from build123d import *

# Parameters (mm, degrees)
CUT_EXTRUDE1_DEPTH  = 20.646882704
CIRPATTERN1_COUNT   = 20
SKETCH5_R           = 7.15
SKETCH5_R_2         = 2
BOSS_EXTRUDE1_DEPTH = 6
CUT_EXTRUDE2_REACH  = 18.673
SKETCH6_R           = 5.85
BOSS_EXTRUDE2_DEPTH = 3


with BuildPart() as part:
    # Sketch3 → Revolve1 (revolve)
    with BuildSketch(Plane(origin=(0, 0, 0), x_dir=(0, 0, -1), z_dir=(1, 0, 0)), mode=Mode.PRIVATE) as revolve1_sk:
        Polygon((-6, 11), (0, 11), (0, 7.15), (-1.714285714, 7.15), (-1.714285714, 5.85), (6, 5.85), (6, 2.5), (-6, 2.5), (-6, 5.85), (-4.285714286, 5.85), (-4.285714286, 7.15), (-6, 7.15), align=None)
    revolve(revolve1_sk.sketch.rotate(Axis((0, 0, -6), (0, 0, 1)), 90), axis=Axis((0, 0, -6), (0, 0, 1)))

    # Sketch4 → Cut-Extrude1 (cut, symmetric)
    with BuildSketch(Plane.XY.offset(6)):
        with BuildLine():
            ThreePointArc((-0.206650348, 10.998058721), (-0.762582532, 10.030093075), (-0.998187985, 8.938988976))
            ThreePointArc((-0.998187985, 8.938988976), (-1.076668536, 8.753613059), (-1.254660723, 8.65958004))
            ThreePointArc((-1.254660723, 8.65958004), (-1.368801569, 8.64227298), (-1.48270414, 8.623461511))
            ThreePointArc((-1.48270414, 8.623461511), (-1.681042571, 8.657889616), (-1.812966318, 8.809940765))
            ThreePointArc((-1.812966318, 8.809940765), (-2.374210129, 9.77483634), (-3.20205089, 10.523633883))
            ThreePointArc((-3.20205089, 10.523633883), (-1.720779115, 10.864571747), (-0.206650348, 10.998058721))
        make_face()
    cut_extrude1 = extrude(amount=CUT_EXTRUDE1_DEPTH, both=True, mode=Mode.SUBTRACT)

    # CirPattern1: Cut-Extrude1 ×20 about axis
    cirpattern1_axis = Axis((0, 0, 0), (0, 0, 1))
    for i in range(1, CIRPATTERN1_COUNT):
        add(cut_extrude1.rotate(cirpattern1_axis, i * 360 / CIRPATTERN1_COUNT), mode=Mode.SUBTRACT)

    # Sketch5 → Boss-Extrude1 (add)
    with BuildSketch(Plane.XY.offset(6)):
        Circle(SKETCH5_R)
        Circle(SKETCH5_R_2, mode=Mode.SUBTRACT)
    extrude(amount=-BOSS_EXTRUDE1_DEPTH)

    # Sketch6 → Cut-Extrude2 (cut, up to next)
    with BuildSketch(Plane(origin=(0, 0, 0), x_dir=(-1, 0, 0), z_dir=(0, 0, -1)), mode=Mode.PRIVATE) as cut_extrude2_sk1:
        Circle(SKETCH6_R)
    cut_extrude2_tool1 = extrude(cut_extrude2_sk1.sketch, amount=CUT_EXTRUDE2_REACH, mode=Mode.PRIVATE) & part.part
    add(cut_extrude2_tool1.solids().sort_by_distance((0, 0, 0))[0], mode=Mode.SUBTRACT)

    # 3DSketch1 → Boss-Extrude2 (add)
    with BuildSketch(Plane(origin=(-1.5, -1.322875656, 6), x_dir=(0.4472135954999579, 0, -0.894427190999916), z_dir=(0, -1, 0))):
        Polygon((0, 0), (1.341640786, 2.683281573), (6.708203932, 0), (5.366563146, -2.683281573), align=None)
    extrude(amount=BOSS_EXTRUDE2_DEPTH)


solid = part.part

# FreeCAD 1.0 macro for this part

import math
import FreeCAD as App
import Part
import Sketcher

V = App.Vector
Q = App.Units.Quantity

doc = App.newDocument("Part")
body = doc.addObject("PartDesign::Body", "Body")

# Sketch on YZ plane
sketch1 = doc.addObject("Sketcher::SketchObject", "Sketch")
body.addObject(sketch1)
sketch1.AttachmentSupport = (doc.YZ_Plane, [""])
sketch1.MapMode = "FlatFace"
sketch1.addGeometry([
    Part.LineSegment(V(11, 0, 0), V(11, 6, 0)),  # 0
    Part.LineSegment(V(11, 6, 0), V(7.15, 6, 0)),  # 1
    Part.LineSegment(V(7.15, 6, 0), V(7.15, 4.285714, 0)),  # 2
    Part.LineSegment(V(7.15, 4.285714, 0), V(5.85, 4.285714, 0)),  # 3
    Part.LineSegment(V(5.85, 4.285714, 0), V(5.85, 6, 0)),  # 4
    Part.LineSegment(V(5.85, 6, 0), V(2.5, 6, 0)),  # 5
    Part.LineSegment(V(2.5, 6, 0), V(2.5, -6, 0)),  # 6
    Part.LineSegment(V(2.5, -6, 0), V(5.85, -6, 0)),  # 7
    Part.LineSegment(V(5.85, -6, 0), V(5.85, 1.714286, 0)),  # 8
    Part.LineSegment(V(5.85, 1.714286, 0), V(7.15, 1.714286, 0)),  # 9
    Part.LineSegment(V(7.15, 1.714286, 0), V(7.15, 0, 0)),  # 10
    Part.LineSegment(V(7.15, 0, 0), V(11, 0, 0)),  # 11
], False)
sketch1.addConstraint([
    Sketcher.Constraint("Coincident", 0, 2, 1, 1),
    Sketcher.Constraint("Coincident", 1, 2, 2, 1),
    Sketcher.Constraint("Coincident", 2, 2, 3, 1),
    Sketcher.Constraint("Coincident", 3, 2, 4, 1),
    Sketcher.Constraint("Coincident", 4, 2, 5, 1),
    Sketcher.Constraint("Coincident", 5, 2, 6, 1),
    Sketcher.Constraint("Coincident", 6, 2, 7, 1),
    Sketcher.Constraint("Coincident", 7, 2, 8, 1),
    Sketcher.Constraint("Coincident", 8, 2, 9, 1),
    Sketcher.Constraint("Coincident", 9, 2, 10, 1),
    Sketcher.Constraint("Coincident", 10, 2, 11, 1),
    Sketcher.Constraint("Coincident", 11, 2, 0, 1),
    Sketcher.Constraint("Vertical", 0),
    Sketcher.Constraint("Horizontal", 1),
    Sketcher.Constraint("Vertical", 2),
    Sketcher.Constraint("Horizontal", 3),
    Sketcher.Constraint("Vertical", 4),
    Sketcher.Constraint("Horizontal", 5),
    Sketcher.Constraint("Vertical", 6),
    Sketcher.Constraint("Horizontal", 7),
    Sketcher.Constraint("Vertical", 8),
    Sketcher.Constraint("Horizontal", 9),
    Sketcher.Constraint("Vertical", 10),
    Sketcher.Constraint("Horizontal", 11),
    Sketcher.Constraint("Symmetric", 4, 2, 7, 2, -1),
    Sketcher.Constraint("PointOnObject", 10, 2, -1),
    Sketcher.Constraint("Horizontal", 1, 2, 4, 2),
    Sketcher.Constraint("Vertical", 2, 2, 9, 2),
    Sketcher.Constraint("Equal", 4, 10),
    Sketcher.Constraint("DistanceY", 0, 1, 0, 2, Q("6 mm")),
    Sketcher.Constraint("DistanceX", 3, 2, 3, 1, Q("1.3 mm")),
    Sketcher.Constraint("DistanceX", -1, 1, 0, 2, Q("11 mm")),
    Sketcher.Constraint("DistanceX", 1, 2, 1, 1, Q("3.85 mm")),
    Sketcher.Constraint("DistanceX", 5, 2, 5, 1, Q("3.35 mm")),
    Sketcher.Constraint("DistanceY", 2, 2, 2, 1, Q("1.714286 mm")),
])
revolution = doc.addObject("PartDesign::Revolution", "Revolution")
body.addObject(revolution)
revolution.Profile = sketch1
revolution.ReferenceAxis = (sketch1, ["V_Axis"])
revolution.Angle = 360

# Sketch on XY plane
sketch2 = doc.addObject("Sketcher::SketchObject", "Sketch001")
body.addObject(sketch2)
sketch2.AttachmentSupport = (doc.XY_Plane, [""])
sketch2.MapMode = "FlatFace"
sketch2.AttachmentOffset = App.Placement(V(0, 0, 6), App.Rotation())
sketch2.addGeometry([
    Part.ArcOfCircle(Part.Circle(V(2.62644, 8.727302, 0), V(0, 0, 1), 3.630804), math.radians(141.287387), math.radians(176.657579)),  # 0
    Part.ArcOfCircle(Part.Circle(V(0, 0, 0), V(0, 0, 1), 11), math.radians(91.076444), math.radians(106.923556)),  # 1
    Part.ArcOfCircle(Part.Circle(V(-5.194777, 7.488543, 0), V(0, 0, 1), 3.630804), math.radians(21.342421), math.radians(56.712613)),  # 2
    Part.ArcOfCircle(Part.Circle(V(-1.53354, 8.919123, 0), V(0, 0, 1), 0.3), math.radians(-158.657579), math.radians(-80.244047)),  # 3
    Part.ArcOfCircle(Part.Circle(V(0, -0.000002, 0), V(0, 0, 1), 8.750002), math.radians(98.244047), math.radians(99.755953)),  # 4
    Part.ArcOfCircle(Part.Circle(V(-1.297678, 8.95648, 0), V(0, 0, 1), 0.3), math.radians(-81.755953), math.radians(-3.342421)),  # 5
], False)
sketch2.addConstraint([
    Sketcher.Constraint("Coincident", 0, 1, 1, 1),
    Sketcher.Constraint("Coincident", 1, 2, 2, 2),
    Sketcher.Constraint("Coincident", 2, 1, 3, 1),
    Sketcher.Constraint("Coincident", 3, 2, 4, 2),
    Sketcher.Constraint("Coincident", 4, 1, 5, 1),
    Sketcher.Constraint("Coincident", 5, 2, 0, 2),
    Sketcher.Constraint("Coincident", 1, 3, -1, 1),
    Sketcher.Constraint("Coincident", 4, 3, -1, 1),
    Sketcher.Constraint("Radius", 1, Q("11 mm")),
    Sketcher.Constraint("Radius", 3, Q("0.3 mm")),
    Sketcher.Constraint("Radius", 5, Q("0.3 mm")),
    Sketcher.Constraint("Radius", 4, Q("8.750002 mm")),
    Sketcher.Constraint("Radius", 0, Q("3.630804 mm")),
    Sketcher.Constraint("Radius", 2, Q("3.630804 mm")),
    Sketcher.Constraint("DistanceY", -1, 1, 0, 3, Q("8.727302 mm")),
    Sketcher.Constraint("DistanceX", 2, 3, 5, 3, Q("3.897099 mm")),
    Sketcher.Constraint("DistanceX", 1, 2, 0, 1, Q("2.995401 mm")),
    Sketcher.Constraint("DistanceY", 2, 3, 2, 1, Q("1.321398 mm")),
    Sketcher.Constraint("DistanceY", 4, 1, 5, 3, Q("0.2969 mm")),
    Sketcher.Constraint("DistanceX", -1, 1, 0, 3, Q("2.62644 mm")),
    Sketcher.Constraint("DistanceY", -1, 1, 3, 2, Q("8.623462 mm")),
    Sketcher.Constraint("DistanceY", -1, 1, 5, 2, Q("8.938989 mm")),
])
pocket1 = doc.addObject("PartDesign::Pocket", "Pocket")
body.addObject(pocket1)
pocket1.Profile = sketch2
pocket1.Length = 41.293765
pocket1.Midplane = True
doc.recompute()

polarpattern = doc.addObject("PartDesign::PolarPattern", "PolarPattern")
body.addObject(polarpattern)
polarpattern.Originals = [pocket1]
polarpattern.Axis = (doc.Z_Axis, [""])
polarpattern.Angle = 360
polarpattern.Occurrences = 20
body.Tip = polarpattern

# Sketch on XY plane
sketch3 = doc.addObject("Sketcher::SketchObject", "Sketch002")
body.addObject(sketch3)
sketch3.AttachmentSupport = (doc.XY_Plane, [""])
sketch3.MapMode = "FlatFace"
sketch3.AttachmentOffset = App.Placement(V(0, 0, 6), App.Rotation())
sketch3.addGeometry([
    Part.Circle(V(0, 0, 0), V(0, 0, 1), 7.15),
    Part.Circle(V(0, 0, 0), V(0, 0, 1), 2),
], False)
sketch3.addConstraint([
    Sketcher.Constraint("Coincident", 0, 3, -1, 1),
    Sketcher.Constraint("Coincident", 1, 3, -1, 1),
    Sketcher.Constraint("Diameter", 1, Q("4 mm")),
    Sketcher.Constraint("Diameter", 0, Q("14.3 mm")),
])
pad1 = doc.addObject("PartDesign::Pad", "Pad")
body.addObject(pad1)
pad1.Profile = sketch3
pad1.Length = 6
pad1.Reversed = True

# Sketch on XY plane
sketch4 = doc.addObject("Sketcher::SketchObject", "Sketch003")
body.addObject(sketch4)
sketch4.AttachmentSupport = (doc.XY_Plane, [""])
sketch4.MapMode = "FlatFace"
sketch4.addGeometry(Part.Circle(V(0, 0, 0), V(0, 0, 1), 5.85), False)
sketch4.addConstraint([
    Sketcher.Constraint("Coincident", 0, 3, -1, 1),
    Sketcher.Constraint("Diameter", 0, Q("11.7 mm")),
])
pocket2 = doc.addObject("PartDesign::Pocket", "Pocket001")
body.addObject(pocket2)
pocket2.Profile = sketch4
pocket2.Length = 6

# Sketch on XZ plane
sketch5 = doc.addObject("Sketcher::SketchObject", "Sketch004")
body.addObject(sketch5)
sketch5.AttachmentSupport = (doc.XZ_Plane, [""])
sketch5.MapMode = "FlatFace"
sketch5.AttachmentOffset = App.Placement(V(0, 0, 1.322876), App.Rotation())
sketch5.addGeometry([
    Part.LineSegment(V(1.5, 6, 0), V(-1.5, 6, 0)),
    Part.LineSegment(V(-1.5, 6, 0), V(-1.5, 0, 0)),
    Part.LineSegment(V(-1.5, 0, 0), V(1.5, 0, 0)),
    Part.LineSegment(V(1.5, 0, 0), V(1.5, 6, 0)),
], False)
sketch5.addConstraint([
    Sketcher.Constraint("Coincident", 0, 2, 1, 1),
    Sketcher.Constraint("Coincident", 1, 2, 2, 1),
    Sketcher.Constraint("Coincident", 2, 2, 3, 1),
    Sketcher.Constraint("Coincident", 3, 2, 0, 1),
    Sketcher.Constraint("Horizontal", 0),
    Sketcher.Constraint("Vertical", 1),
    Sketcher.Constraint("Horizontal", 2),
    Sketcher.Constraint("Vertical", 3),
    Sketcher.Constraint("Symmetric", 1, 2, 2, 2, -1, 1),
    Sketcher.Constraint("DistanceX", 0, 2, 0, 1, Q("3 mm")),
    Sketcher.Constraint("DistanceY", 1, 2, 1, 1, Q("6 mm")),
])
pad2 = doc.addObject("PartDesign::Pad", "Pad001")
body.addObject(pad2)
pad2.Profile = sketch5
pad2.Length = 3

doc.recompute()
